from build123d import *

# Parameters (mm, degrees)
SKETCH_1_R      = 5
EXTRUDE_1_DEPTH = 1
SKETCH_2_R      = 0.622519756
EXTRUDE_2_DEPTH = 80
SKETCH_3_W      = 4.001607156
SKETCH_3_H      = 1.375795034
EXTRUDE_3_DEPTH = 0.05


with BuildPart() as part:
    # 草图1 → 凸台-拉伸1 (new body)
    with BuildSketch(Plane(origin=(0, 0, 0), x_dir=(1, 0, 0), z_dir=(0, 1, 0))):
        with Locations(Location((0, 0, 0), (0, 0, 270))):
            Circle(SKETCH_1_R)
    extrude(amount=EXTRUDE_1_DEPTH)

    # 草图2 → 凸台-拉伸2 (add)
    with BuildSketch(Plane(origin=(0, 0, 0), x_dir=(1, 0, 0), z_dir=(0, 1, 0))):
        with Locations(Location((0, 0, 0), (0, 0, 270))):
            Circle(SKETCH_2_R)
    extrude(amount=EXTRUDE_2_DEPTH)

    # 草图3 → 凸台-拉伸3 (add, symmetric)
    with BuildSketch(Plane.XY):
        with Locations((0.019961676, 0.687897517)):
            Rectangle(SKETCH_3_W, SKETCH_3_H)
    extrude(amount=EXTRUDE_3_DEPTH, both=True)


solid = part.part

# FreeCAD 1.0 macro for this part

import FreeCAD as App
import Part
import Sketcher

V = App.Vector


def add_polygon(sketch, points):
    """Adds a closed chain of lines whose ends are joined by coincident constraints."""
    first, n = sketch.GeometryCount, len(points)
    for a, b in zip(points, points[1:] + points[:1]):
        sketch.addGeometry(Part.LineSegment(App.Vector(*a, 0), App.Vector(*b, 0)), False)
    for i in range(n):
        sketch.addConstraint(Sketcher.Constraint("Coincident", first + i, 2, first + (i + 1) % n, 1))

doc = App.newDocument("Part")
body = doc.addObject("PartDesign::Body", "Body")

# Sketch on XZ plane
sketch1 = body.newObject("Sketcher::SketchObject", "Sketch")
sketch1.AttachmentSupport = (doc.getObject("XZ_Plane"), [""])
sketch1.MapMode = "FlatFace"
sketch1.addGeometry(Part.Circle(V(0, 0, 0), V(0, 0, 1), 5), False)
sketch1.addConstraint([
    Sketcher.Constraint("Coincident", 0, 3, -1, 1),
    Sketcher.Constraint("Diameter", 0, 10.0),
])
pad1 = body.newObject("PartDesign::Pad", "Pad")
pad1.Profile = sketch1
pad1.Length = 1
pad1.Reversed = True

# Sketch on XZ plane
sketch2 = body.newObject("Sketcher::SketchObject", "Sketch001")
sketch2.AttachmentSupport = (doc.getObject("XZ_Plane"), [""])
sketch2.MapMode = "FlatFace"
sketch2.addGeometry(Part.Circle(V(0, 0, 0), V(0, 0, 1), 0.6), False)
sketch2.addConstraint([
    Sketcher.Constraint("Coincident", 0, 3, -1, 1),
    Sketcher.Constraint("Diameter", 0, 1.24504),
])
pad2 = body.newObject("PartDesign::Pad", "Pad001")
pad2.Profile = sketch2
pad2.Length = 80
pad2.Reversed = True

# Sketch on XY plane
sketch3 = body.newObject("Sketcher::SketchObject", "Sketch002")
sketch3.AttachmentSupport = (doc.getObject("XY_Plane"), [""])
sketch3.MapMode = "FlatFace"
add_polygon(sketch3, [(-2, 1.4), (-2, 0), (2, 0), (2, 1.4)])  # lines 0-3
sketch3.addConstraint([
    Sketcher.Constraint("Vertical", 0),
    Sketcher.Constraint("Horizontal", 1),
    Sketcher.Constraint("Vertical", 2),
    Sketcher.Constraint("Horizontal", 3),
    Sketcher.Constraint("PointOnObject", 0, 2, -1),
    Sketcher.Constraint("DistanceX", 1, 1, 1, 2, 4.001607),
    Sketcher.Constraint("DistanceY", 0, 2, 0, 1, 1.375795),
    Sketcher.Constraint("DistanceX", 0, 2, -1, 1, 1.980842),
])
pad3 = body.newObject("PartDesign::Pad", "Pad002")
pad3.Profile = sketch3
pad3.Length = 0.1
pad3.Midplane = True

doc.recompute()
